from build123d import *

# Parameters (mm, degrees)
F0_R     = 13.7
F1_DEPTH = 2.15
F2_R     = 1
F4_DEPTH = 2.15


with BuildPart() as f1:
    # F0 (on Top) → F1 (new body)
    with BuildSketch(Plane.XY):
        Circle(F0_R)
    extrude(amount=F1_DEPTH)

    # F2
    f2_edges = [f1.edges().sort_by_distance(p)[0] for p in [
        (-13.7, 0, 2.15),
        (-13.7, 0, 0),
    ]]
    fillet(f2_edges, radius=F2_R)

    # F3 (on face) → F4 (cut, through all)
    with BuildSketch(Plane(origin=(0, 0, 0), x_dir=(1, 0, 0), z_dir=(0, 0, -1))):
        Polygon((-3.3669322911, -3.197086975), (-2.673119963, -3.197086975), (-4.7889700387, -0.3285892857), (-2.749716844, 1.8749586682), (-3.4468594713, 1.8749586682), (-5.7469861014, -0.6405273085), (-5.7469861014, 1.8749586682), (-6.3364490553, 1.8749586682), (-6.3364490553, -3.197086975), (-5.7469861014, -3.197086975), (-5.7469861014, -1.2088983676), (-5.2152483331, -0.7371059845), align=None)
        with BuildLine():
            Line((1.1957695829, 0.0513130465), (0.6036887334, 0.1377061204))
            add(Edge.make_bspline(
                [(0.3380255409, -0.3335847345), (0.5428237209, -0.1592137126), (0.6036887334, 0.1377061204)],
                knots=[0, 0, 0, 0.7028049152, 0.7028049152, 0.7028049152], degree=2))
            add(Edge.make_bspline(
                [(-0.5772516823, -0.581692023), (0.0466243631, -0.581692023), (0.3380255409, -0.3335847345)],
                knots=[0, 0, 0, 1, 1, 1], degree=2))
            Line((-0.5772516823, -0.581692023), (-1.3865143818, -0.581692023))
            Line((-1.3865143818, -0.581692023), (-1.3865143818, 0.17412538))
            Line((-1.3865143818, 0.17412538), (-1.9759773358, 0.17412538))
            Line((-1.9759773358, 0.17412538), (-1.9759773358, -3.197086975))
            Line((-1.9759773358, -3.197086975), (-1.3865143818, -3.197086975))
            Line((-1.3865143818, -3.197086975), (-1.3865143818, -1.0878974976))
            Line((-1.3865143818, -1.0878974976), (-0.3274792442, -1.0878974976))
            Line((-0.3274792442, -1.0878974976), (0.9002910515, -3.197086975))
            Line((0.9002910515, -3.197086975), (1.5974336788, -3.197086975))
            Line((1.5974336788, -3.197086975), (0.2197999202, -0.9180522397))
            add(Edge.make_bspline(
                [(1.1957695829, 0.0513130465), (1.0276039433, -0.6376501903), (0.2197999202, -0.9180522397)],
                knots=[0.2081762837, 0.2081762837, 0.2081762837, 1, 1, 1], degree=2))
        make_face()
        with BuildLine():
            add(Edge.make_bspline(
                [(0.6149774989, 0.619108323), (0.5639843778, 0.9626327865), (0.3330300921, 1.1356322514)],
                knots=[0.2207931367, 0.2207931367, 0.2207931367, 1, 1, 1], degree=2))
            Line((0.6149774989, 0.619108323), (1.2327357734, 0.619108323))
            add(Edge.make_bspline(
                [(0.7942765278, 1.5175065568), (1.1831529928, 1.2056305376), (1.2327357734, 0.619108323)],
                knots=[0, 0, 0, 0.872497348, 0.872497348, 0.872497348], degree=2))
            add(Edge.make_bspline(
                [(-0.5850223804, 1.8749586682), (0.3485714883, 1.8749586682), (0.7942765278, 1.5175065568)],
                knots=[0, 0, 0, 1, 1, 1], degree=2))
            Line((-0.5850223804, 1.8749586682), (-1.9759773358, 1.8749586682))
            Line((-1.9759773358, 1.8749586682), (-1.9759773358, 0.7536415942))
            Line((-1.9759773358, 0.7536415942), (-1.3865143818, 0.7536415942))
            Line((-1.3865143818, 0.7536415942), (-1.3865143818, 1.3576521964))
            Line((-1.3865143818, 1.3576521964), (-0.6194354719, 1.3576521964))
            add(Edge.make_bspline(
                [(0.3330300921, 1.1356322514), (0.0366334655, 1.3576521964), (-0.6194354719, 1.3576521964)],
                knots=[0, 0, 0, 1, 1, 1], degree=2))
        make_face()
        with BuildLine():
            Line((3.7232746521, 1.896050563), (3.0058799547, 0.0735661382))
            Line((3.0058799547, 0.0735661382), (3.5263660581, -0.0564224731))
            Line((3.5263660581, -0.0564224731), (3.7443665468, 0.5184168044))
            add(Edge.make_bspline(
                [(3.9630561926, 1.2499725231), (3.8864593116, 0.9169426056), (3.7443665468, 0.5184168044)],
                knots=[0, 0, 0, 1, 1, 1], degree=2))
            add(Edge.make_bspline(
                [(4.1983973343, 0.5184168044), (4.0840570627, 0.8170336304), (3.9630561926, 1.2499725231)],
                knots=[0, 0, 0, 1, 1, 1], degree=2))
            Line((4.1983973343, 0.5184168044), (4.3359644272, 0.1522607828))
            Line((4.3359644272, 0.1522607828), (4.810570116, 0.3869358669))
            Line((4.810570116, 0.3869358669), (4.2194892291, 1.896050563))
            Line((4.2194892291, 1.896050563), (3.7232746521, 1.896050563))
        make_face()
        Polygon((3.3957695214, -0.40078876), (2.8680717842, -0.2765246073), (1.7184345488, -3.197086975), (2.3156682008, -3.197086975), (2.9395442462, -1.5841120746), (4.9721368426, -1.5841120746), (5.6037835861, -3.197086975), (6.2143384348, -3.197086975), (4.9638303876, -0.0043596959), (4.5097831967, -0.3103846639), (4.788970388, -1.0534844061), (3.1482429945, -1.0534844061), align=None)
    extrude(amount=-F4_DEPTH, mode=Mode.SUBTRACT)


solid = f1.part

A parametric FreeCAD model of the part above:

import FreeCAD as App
import Part
import Sketcher

V = App.Vector


def edges_at(feature, points):
    """Names of the edges that pass closest to the given points."""
    edges = feature.Shape.Edges
    near = lambda p: min(range(len(edges)), key=lambda i: edges[i].distToShape(Part.Vertex(*p))[0])
    return sorted({f"Edge{near(p) + 1}" for p in points})


def add_polygon(sketch, points):
    """Adds a closed chain of lines whose ends are joined by coincident constraints."""
    first, n = sketch.GeometryCount, len(points)
    for a, b in zip(points, points[1:] + points[:1]):
        sketch.addGeometry(Part.LineSegment(App.Vector(*a, 0), App.Vector(*b, 0)), False)
    for i in range(n):
        sketch.addConstraint(Sketcher.Constraint("Coincident", first + i, 2, first + (i + 1) % n, 1))

doc = App.newDocument("Part")
params = doc.addObject("Spreadsheet::Sheet", "Params")
for row, (alias, value) in enumerate([
    ("sketch1_diameter", "27.4 mm"),
    ("pad1_length", "2.15 mm"),
    ("fillet_radius", "1 mm"),
], start=1):
    params.set(f"A{row}", alias)
    params.set(f"B{row}", "=" + value)
    params.setAlias(f"B{row}", alias)

body = doc.addObject("PartDesign::Body", "Body")

sketch1 = body.newObject("Sketcher::SketchObject", "Sketch")
sketch1.AttachmentSupport = (doc.getObject("XY_Plane"), [""])
sketch1.MapMode = "FlatFace"
sketch1.addGeometry(Part.Circle(V(0, 0, 0), V(0, 0, 1), 14), False)
sketch1.addConstraint(Sketcher.Constraint("Coincident", 0, 3, -1, 1))
sketch1.addConstraint(Sketcher.Constraint("Diameter", 0, 27.4))
sketch1.setExpression("Constraints[1]", "Params.sketch1_diameter")
pad1 = body.newObject("PartDesign::Pad", "Pad")
pad1.Profile = sketch1
pad1.setExpression("Length", "Params.pad1_length")
doc.recompute()

fillet = body.newObject("PartDesign::Fillet", "Fillet")
fillet.Base = (pad1, edges_at(pad1, [(-13.7, 0, 2.15), (-13.7, 0, 0)]))
fillet.setExpression("Radius", "Params.fillet_radius")

sketch2 = body.newObject("Sketcher::SketchObject", "Sketch001")
sketch2.AttachmentSupport = (doc.getObject("XY_Plane"), [""])
sketch2.MapMode = "FlatFace"
add_polygon(sketch2, [(-3.366932, 3.197087), (-2.67312, 3.197087), (-4.78897, 0.328589), (-2.749717, -1.874959), (-3.446859, -1.874959), (-5.746986, 0.640527), (-5.746986, -1.874959), (-6.336449, -1.874959), (-6.336449, 3.197087), (-5.746986, 3.197087), (-5.746986, 1.208898), (-5.215248, 0.737106)])
sketch2.addGeometry(Part.LineSegment(V(1.19577, -0.051313, 0), V(0.603689, -0.137706, 0)), False)
sketch2.addGeometry(Part.BSplineCurve([V(0.338026, 0.333585, 0), V(0.542824, 0.159214, 0), V(0.603689, -0.137706, 0)], [3, 3], [0, 0.702804915], False, 2, [1, 1, 1], False), False)
sketch2.addGeometry(Part.BSplineCurve([V(-0.577252, 0.581692, 0), V(0.046624, 0.581692, 0), V(0.338026, 0.333585, 0)], [3, 3], [0, 1], False, 2, [1, 1, 1], False), False)
sketch2.addGeometry(Part.LineSegment(V(-0.577252, 0.581692, 0), V(-1.386514, 0.581692, 0)), False)
sketch2.addGeometry(Part.LineSegment(V(-1.386514, 0.581692, 0), V(-1.386514, -0.174125, 0)), False)
sketch2.addGeometry(Part.LineSegment(V(-1.386514, -0.174125, 0), V(-1.975977, -0.174125, 0)), False)
sketch2.addGeometry(Part.LineSegment(V(-1.975977, -0.174125, 0), V(-1.975977, 3.197087, 0)), False)
sketch2.addGeometry(Part.LineSegment(V(-1.975977, 3.197087, 0), V(-1.386514, 3.197087, 0)), False)
sketch2.addGeometry(Part.LineSegment(V(-1.386514, 3.197087, 0), V(-1.386514, 1.087897, 0)), False)
sketch2.addGeometry(Part.LineSegment(V(-1.386514, 1.087897, 0), V(-0.327479, 1.087897, 0)), False)
sketch2.addGeometry(Part.LineSegment(V(-0.327479, 1.087897, 0), V(0.900291, 3.197087, 0)), False)
sketch2.addGeometry(Part.LineSegment(V(0.900291, 3.197087, 0), V(1.597434, 3.197087, 0)), False)
sketch2.addGeometry(Part.LineSegment(V(1.597434, 3.197087, 0), V(0.2198, 0.918052, 0)), False)
sketch2.addGeometry(Part.BSplineCurve([V(1.19577, -0.051313, 0), V(1.027604, 0.63765, 0), V(0.2198, 0.918052, 0)], [3, 3], [0.208176284, 1], False, 2, [1, 1, 1], False), False)
sketch2.addGeometry(Part.BSplineCurve([V(0.614977, -0.619108, 0), V(0.563984, -0.962633, 0), V(0.33303, -1.135632, 0)], [3, 3], [0.220793137, 1], False, 2, [1, 1, 1], False), False)
sketch2.addGeometry(Part.LineSegment(V(0.614977, -0.619108, 0), V(1.232736, -0.619108, 0)), False)
sketch2.addGeometry(Part.BSplineCurve([V(0.794277, -1.517507, 0), V(1.183153, -1.205631, 0), V(1.232736, -0.619108, 0)], [3, 3], [0, 0.872497348], False, 2, [1, 1, 1], False), False)
sketch2.addGeometry(Part.BSplineCurve([V(-0.585022, -1.874959, 0), V(0.348571, -1.874959, 0), V(0.794277, -1.517507, 0)], [3, 3], [0, 1], False, 2, [1, 1, 1], False), False)
sketch2.addGeometry(Part.LineSegment(V(-0.585022, -1.874959, 0), V(-1.975977, -1.874959, 0)), False)
sketch2.addGeometry(Part.LineSegment(V(-1.975977, -1.874959, 0), V(-1.975977, -0.753642, 0)), False)
sketch2.addGeometry(Part.LineSegment(V(-1.975977, -0.753642, 0), V(-1.386514, -0.753642, 0)), False)
sketch2.addGeometry(Part.LineSegment(V(-1.386514, -0.753642, 0), V(-1.386514, -1.357652, 0)), False)
sketch2.addGeometry(Part.LineSegment(V(-1.386514, -1.357652, 0), V(-0.619435, -1.357652, 0)), False)
sketch2.addGeometry(Part.BSplineCurve([V(0.33303, -1.135632, 0), V(0.036633, -1.357652, 0), V(-0.619435, -1.357652, 0)], [3, 3], [0, 1], False, 2, [1, 1, 1], False), False)
sketch2.addGeometry(Part.LineSegment(V(3.723275, -1.896051, 0), V(3.00588, -0.073566, 0)), False)
sketch2.addGeometry(Part.LineSegment(V(3.00588, -0.073566, 0), V(3.526366, 0.056422, 0)), False)
sketch2.addGeometry(Part.LineSegment(V(3.526366, 0.056422, 0), V(3.744367, -0.518417, 0)), False)
sketch2.addGeometry(Part.BSplineCurve([V(3.963056, -1.249973, 0), V(3.886459, -0.916943, 0), V(3.744367, -0.518417, 0)], [3, 3], [0, 1], False, 2, [1, 1, 1], False), False)
sketch2.addGeometry(Part.BSplineCurve([V(4.198397, -0.518417, 0), V(4.084057, -0.817034, 0), V(3.963056, -1.249973, 0)], [3, 3], [0, 1], False, 2, [1, 1, 1], False), False)
sketch2.addGeometry(Part.LineSegment(V(4.198397, -0.518417, 0), V(4.335964, -0.152261, 0)), False)
sketch2.addGeometry(Part.LineSegment(V(4.335964, -0.152261, 0), V(4.81057, -0.386936, 0)), False)
sketch2.addGeometry(Part.LineSegment(V(4.81057, -0.386936, 0), V(4.219489, -1.896051, 0)), False)
sketch2.addGeometry(Part.LineSegment(V(4.219489, -1.896051, 0), V(3.723275, -1.896051, 0)), False)
add_polygon(sketch2, [(3.39577, 0.400789), (2.868072, 0.276525), (1.718435, 3.197087), (2.315668, 3.197087), (2.939544, 1.584112), (4.972137, 1.584112), (5.603784, 3.197087), (6.214338, 3.197087), (4.96383, 0.00436), (4.509783, 0.310385), (4.78897, 1.053484), (3.148243, 1.053484)])
sketch2.addConstraint(Sketcher.Constraint("Block", 13))
sketch2.addConstraint(Sketcher.Constraint("Block", 14))
sketch2.addConstraint(Sketcher.Constraint("Block", 25))
sketch2.addConstraint(Sketcher.Constraint("Block", 26))
sketch2.addConstraint(Sketcher.Constraint("Block", 28))
sketch2.addConstraint(Sketcher.Constraint("Block", 29))
sketch2.addConstraint(Sketcher.Constraint("Block", 35))
sketch2.addConstraint(Sketcher.Constraint("Block", 39))
sketch2.addConstraint(Sketcher.Constraint("Block", 40))
sketch2.addConstraint(Sketcher.Constraint("Coincident", 12, 2, 13, 2))
sketch2.addConstraint(Sketcher.Constraint("Coincident", 14, 1, 15, 1))
sketch2.addConstraint(Sketcher.Constraint("Coincident", 15, 2, 16, 1))
sketch2.addConstraint(Sketcher.Constraint("Coincident", 16, 2, 17, 1))
sketch2.addConstraint(Sketcher.Constraint("Coincident", 17, 2, 18, 1))
sketch2.addConstraint(Sketcher.Constraint("Coincident", 18, 2, 19, 1))
sketch2.addConstraint(Sketcher.Constraint("Coincident", 19, 2, 20, 1))
sketch2.addConstraint(Sketcher.Constraint("Coincident", 20, 2, 21, 1))
sketch2.addConstraint(Sketcher.Constraint("Coincident", 21, 2, 22, 1))
sketch2.addConstraint(Sketcher.Constraint("Coincident", 22, 2, 23, 1))
sketch2.addConstraint(Sketcher.Constraint("Coincident", 23, 2, 24, 1))
sketch2.addConstraint(Sketcher.Constraint("Coincident", 24, 2, 25, 2))
sketch2.addConstraint(Sketcher.Constraint("Coincident", 25, 1, 12, 1))
sketch2.addConstraint(Sketcher.Constraint("Coincident", 26, 1, 27, 1))
sketch2.addConstraint(Sketcher.Constraint("Coincident", 27, 2, 28, 2))
sketch2.addConstraint(Sketcher.Constraint("Coincident", 29, 1, 30, 1))
sketch2.addConstraint(Sketcher.Constraint("Coincident", 30, 2, 31, 1))
sketch2.addConstraint(Sketcher.Constraint("Coincident", 31, 2, 32, 1))
sketch2.addConstraint(Sketcher.Constraint("Coincident", 32, 2, 33, 1))
sketch2.addConstraint(Sketcher.Constraint("Coincident", 33, 2, 34, 1))
sketch2.addConstraint(Sketcher.Constraint("Coincident", 34, 2, 35, 2))
sketch2.addConstraint(Sketcher.Constraint("Coincident", 36, 2, 37, 1))
sketch2.addConstraint(Sketcher.Constraint("Coincident", 37, 2, 38, 1))
sketch2.addConstraint(Sketcher.Constraint("Coincident", 38, 2, 39, 2))
sketch2.addConstraint(Sketcher.Constraint("Coincident", 40, 1, 41, 1))
sketch2.addConstraint(Sketcher.Constraint("Coincident", 41, 2, 42, 1))
sketch2.addConstraint(Sketcher.Constraint("Coincident", 42, 2, 43, 1))
sketch2.addConstraint(Sketcher.Constraint("Coincident", 43, 2, 44, 1))
sketch2.addConstraint(Sketcher.Constraint("Coincident", 44, 2, 36, 1))
sketch2.addConstraint(Sketcher.Constraint("Horizontal", 0))
sketch2.addConstraint(Sketcher.Constraint("Horizontal", 3))
sketch2.addConstraint(Sketcher.Constraint("Vertical", 5))
sketch2.addConstraint(Sketcher.Constraint("Horizontal", 6))
sketch2.addConstraint(Sketcher.Constraint("Vertical", 7))
sketch2.addConstraint(Sketcher.Constraint("Horizontal", 8))
sketch2.addConstraint(Sketcher.Constraint("Vertical", 9))
sketch2.addConstraint(Sketcher.Constraint("Horizontal", 15))
sketch2.addConstraint(Sketcher.Constraint("Vertical", 16))
sketch2.addConstraint(Sketcher.Constraint("Horizontal", 17))
sketch2.addConstraint(Sketcher.Constraint("Vertical", 18))
sketch2.addConstraint(Sketcher.Constraint("Horizontal", 19))
sketch2.addConstraint(Sketcher.Constraint("Vertical", 20))
sketch2.addConstraint(Sketcher.Constraint("Horizontal", 21))
sketch2.addConstraint(Sketcher.Constraint("Horizontal", 23))
sketch2.addConstraint(Sketcher.Constraint("Horizontal", 30))
sketch2.addConstraint(Sketcher.Constraint("Vertical", 31))
sketch2.addConstraint(Sketcher.Constraint("Horizontal", 32))
sketch2.addConstraint(Sketcher.Constraint("Vertical", 33))
sketch2.addConstraint(Sketcher.Constraint("Horizontal", 34))
sketch2.addConstraint(Sketcher.Constraint("Horizontal", 44))
sketch2.addConstraint(Sketcher.Constraint("Horizontal", 47))
sketch2.addConstraint(Sketcher.Constraint("Horizontal", 49))
sketch2.addConstraint(Sketcher.Constraint("Horizontal", 51))
sketch2.addConstraint(Sketcher.Constraint("Horizontal", 55))
sketch2.addConstraint(Sketcher.Constraint("DistanceX", 37, 2, 38, 2, 0.218))
sketch2.addConstraint(Sketcher.Constraint("DistanceX", 23, 2, 46, 2, 0.121001))
sketch2.addConstraint(Sketcher.Constraint("DistanceX", 34, 1, 34, 2, 0.767079))
sketch2.addConstraint(Sketcher.Constraint("DistanceY", 9, 2, 9, 1, 1.988189))
sketch2.addConstraint(Sketcher.Constraint("DistanceY", 20, 2, 20, 1, 2.109189))
sketch2.addConstraint(Sketcher.Constraint("DistanceY", 33, 2, 33, 1, 0.604011))
sketch2.addConstraint(Sketcher.Constraint("DistanceY", -1, 1, 9, 2, 1.208898))
sketch2.addConstraint(Sketcher.Constraint("DistanceX", 17, 2, 21, 2, 1.648498))
sketch2.addConstraint(Sketcher.Constraint("DistanceX", 37, 2, 41, 2, 0.809598))
sketch2.addConstraint(Sketcher.Constraint("DistanceX", 49, 2, 51, 2, 1.242202))
sketch2.addConstraint(Sketcher.Constraint("DistanceY", 38, 2, 53, 2, 0.828801))
sketch2.addConstraint(Sketcher.Constraint("DistanceY", 53, 2, 54, 2, 0.7431))
sketch2.addConstraint(Sketcher.Constraint("DistanceX", 54, 2, 42, 2, 0.0216))
sketch2.addConstraint(Sketcher.Constraint("DistanceX", 48, 2, 55, 2, 0.208699))
sketch2.addConstraint(Sketcher.Constraint("Distance", 1, 3.564421))
sketch2.addConstraint(Sketcher.Constraint("Distance", 2, 3.002362))
sketch2.addConstraint(Sketcher.Constraint("Distance", 38, 0.614788))
sketch2.addConstraint(Sketcher.Constraint("Distance", 43, 1.620742))
sketch2.addConstraint(Sketcher.Constraint("Distance", 45, 0.542131))
sketch2.addConstraint(Sketcher.Constraint("Distance", 52, 3.428889))
sketch2.addConstraint(Sketcher.Constraint("Distance", 53, 0.547549))
sketch2.addConstraint(Sketcher.Constraint("DistanceX", 0, 1, 0, 2, 0.693812))
sketch2.addConstraint(Sketcher.Constraint("DistanceX", 3, 2, 3, 1, 0.697143))
sketch2.addConstraint(Sketcher.Constraint("DistanceX", 6, 2, 6, 1, 0.589463))
sketch2.addConstraint(Sketcher.Constraint("DistanceX", 8, 1, 8, 2, 0.589463))
sketch2.addConstraint(Sketcher.Constraint("DistanceX", 15, 2, 15, 1, 0.809263))
sketch2.addConstraint(Sketcher.Constraint("DistanceX", 17, 2, 17, 1, 0.589463))
sketch2.addConstraint(Sketcher.Constraint("DistanceX", 19, 1, 19, 2, 0.589463))
sketch2.addConstraint(Sketcher.Constraint("DistanceX", 23, 1, 23, 2, 0.697143))
sketch2.addConstraint(Sketcher.Constraint("DistanceX", 30, 2, 30, 1, 1.390955))
sketch2.addConstraint(Sketcher.Constraint("DistanceX", 44, 2, 44, 1, 0.496215))
sketch2.addConstraint(Sketcher.Constraint("DistanceX", 47, 1, 47, 2, 0.597234))
sketch2.addConstraint(Sketcher.Constraint("DistanceX", 49, 1, 49, 2, 2.032593))
sketch2.addConstraint(Sketcher.Constraint("DistanceX", 51, 1, 51, 2, 0.610555))
sketch2.addConstraint(Sketcher.Constraint("DistanceX", 55, 2, 55, 1, 1.640727))
sketch2.addConstraint(Sketcher.Constraint("DistanceY", 5, 2, 5, 1, 2.515486))
sketch2.addConstraint(Sketcher.Constraint("DistanceY", 7, 1, 7, 2, 5.072046))
sketch2.addConstraint(Sketcher.Constraint("DistanceY", 16, 2, 16, 1, 0.755817))
sketch2.addConstraint(Sketcher.Constraint("DistanceY", 18, 1, 18, 2, 3.371212))
sketch2.addConstraint(Sketcher.Constraint("DistanceX", 0, 2, -1, 1, 2.67312))
sketch2.addConstraint(Sketcher.Constraint("DistanceX", 1, 2, -1, 1, 4.78897))
sketch2.addConstraint(Sketcher.Constraint("DistanceY", -1, 1, 1, 2, 0.328589))
sketch2.addConstraint(Sketcher.Constraint("DistanceY", 2, 2, -1, 1, 1.874959))
sketch2.addConstraint(Sketcher.Constraint("DistanceX", 6, 2, -1, 1, 6.336449))
sketch2.addConstraint(Sketcher.Constraint("DistanceX", 10, 2, -1, 1, 5.215248))
sketch2.addConstraint(Sketcher.Constraint("DistanceX", -1, 1, 22, 2, 0.900291))
sketch2.addConstraint(Sketcher.Constraint("DistanceX", -1, 1, 36, 2, 3.00588))
sketch2.addConstraint(Sketcher.Constraint("DistanceY", 41, 2, -1, 1, 0.152261))
sketch2.addConstraint(Sketcher.Constraint("DistanceX", -1, 1, 42, 2, 4.81057))
sketch2.addConstraint(Sketcher.Constraint("DistanceX", -1, 1, 43, 2, 4.219489))
sketch2.addConstraint(Sketcher.Constraint("DistanceY", 43, 2, -1, 1, 1.896051))
sketch2.addConstraint(Sketcher.Constraint("DistanceX", -1, 1, 45, 2, 2.868072))
sketch2.addConstraint(Sketcher.Constraint("DistanceX", -1, 1, 52, 2, 4.96383))
sketch2.addConstraint(Sketcher.Constraint("DistanceY", -1, 1, 52, 2, 0.00436))
sketch2.addConstraint(Sketcher.Constraint("DistanceX", -1, 1, 56, 2, 3.39577))
sketch2.addConstraint(Sketcher.Constraint("DistanceY", -1, 1, 56, 2, 0.400789))
sketch2.addConstraint(Sketcher.Constraint("DistanceY", 4, 2, 10, 2, 0.096579))
sketch2.addConstraint(Sketcher.Constraint("DistanceY", 21, 2, 22, 2, 2.109189))
sketch2.addConstraint(Sketcher.Constraint("DistanceY", 12, 2, 36, 2, 0.06414))
sketch2.addConstraint(Sketcher.Constraint("DistanceY", 21, 2, 46, 2, 2.109189))
sketch2.addConstraint(Sketcher.Constraint("DistanceY", 37, 2, 48, 2, 1.52769))
pocket1 = body.newObject("PartDesign::Pocket", "Pocket")
pocket1.Profile = sketch2
pocket1.Type = "ThroughAll"
pocket1.Reversed = True

doc.recompute()
